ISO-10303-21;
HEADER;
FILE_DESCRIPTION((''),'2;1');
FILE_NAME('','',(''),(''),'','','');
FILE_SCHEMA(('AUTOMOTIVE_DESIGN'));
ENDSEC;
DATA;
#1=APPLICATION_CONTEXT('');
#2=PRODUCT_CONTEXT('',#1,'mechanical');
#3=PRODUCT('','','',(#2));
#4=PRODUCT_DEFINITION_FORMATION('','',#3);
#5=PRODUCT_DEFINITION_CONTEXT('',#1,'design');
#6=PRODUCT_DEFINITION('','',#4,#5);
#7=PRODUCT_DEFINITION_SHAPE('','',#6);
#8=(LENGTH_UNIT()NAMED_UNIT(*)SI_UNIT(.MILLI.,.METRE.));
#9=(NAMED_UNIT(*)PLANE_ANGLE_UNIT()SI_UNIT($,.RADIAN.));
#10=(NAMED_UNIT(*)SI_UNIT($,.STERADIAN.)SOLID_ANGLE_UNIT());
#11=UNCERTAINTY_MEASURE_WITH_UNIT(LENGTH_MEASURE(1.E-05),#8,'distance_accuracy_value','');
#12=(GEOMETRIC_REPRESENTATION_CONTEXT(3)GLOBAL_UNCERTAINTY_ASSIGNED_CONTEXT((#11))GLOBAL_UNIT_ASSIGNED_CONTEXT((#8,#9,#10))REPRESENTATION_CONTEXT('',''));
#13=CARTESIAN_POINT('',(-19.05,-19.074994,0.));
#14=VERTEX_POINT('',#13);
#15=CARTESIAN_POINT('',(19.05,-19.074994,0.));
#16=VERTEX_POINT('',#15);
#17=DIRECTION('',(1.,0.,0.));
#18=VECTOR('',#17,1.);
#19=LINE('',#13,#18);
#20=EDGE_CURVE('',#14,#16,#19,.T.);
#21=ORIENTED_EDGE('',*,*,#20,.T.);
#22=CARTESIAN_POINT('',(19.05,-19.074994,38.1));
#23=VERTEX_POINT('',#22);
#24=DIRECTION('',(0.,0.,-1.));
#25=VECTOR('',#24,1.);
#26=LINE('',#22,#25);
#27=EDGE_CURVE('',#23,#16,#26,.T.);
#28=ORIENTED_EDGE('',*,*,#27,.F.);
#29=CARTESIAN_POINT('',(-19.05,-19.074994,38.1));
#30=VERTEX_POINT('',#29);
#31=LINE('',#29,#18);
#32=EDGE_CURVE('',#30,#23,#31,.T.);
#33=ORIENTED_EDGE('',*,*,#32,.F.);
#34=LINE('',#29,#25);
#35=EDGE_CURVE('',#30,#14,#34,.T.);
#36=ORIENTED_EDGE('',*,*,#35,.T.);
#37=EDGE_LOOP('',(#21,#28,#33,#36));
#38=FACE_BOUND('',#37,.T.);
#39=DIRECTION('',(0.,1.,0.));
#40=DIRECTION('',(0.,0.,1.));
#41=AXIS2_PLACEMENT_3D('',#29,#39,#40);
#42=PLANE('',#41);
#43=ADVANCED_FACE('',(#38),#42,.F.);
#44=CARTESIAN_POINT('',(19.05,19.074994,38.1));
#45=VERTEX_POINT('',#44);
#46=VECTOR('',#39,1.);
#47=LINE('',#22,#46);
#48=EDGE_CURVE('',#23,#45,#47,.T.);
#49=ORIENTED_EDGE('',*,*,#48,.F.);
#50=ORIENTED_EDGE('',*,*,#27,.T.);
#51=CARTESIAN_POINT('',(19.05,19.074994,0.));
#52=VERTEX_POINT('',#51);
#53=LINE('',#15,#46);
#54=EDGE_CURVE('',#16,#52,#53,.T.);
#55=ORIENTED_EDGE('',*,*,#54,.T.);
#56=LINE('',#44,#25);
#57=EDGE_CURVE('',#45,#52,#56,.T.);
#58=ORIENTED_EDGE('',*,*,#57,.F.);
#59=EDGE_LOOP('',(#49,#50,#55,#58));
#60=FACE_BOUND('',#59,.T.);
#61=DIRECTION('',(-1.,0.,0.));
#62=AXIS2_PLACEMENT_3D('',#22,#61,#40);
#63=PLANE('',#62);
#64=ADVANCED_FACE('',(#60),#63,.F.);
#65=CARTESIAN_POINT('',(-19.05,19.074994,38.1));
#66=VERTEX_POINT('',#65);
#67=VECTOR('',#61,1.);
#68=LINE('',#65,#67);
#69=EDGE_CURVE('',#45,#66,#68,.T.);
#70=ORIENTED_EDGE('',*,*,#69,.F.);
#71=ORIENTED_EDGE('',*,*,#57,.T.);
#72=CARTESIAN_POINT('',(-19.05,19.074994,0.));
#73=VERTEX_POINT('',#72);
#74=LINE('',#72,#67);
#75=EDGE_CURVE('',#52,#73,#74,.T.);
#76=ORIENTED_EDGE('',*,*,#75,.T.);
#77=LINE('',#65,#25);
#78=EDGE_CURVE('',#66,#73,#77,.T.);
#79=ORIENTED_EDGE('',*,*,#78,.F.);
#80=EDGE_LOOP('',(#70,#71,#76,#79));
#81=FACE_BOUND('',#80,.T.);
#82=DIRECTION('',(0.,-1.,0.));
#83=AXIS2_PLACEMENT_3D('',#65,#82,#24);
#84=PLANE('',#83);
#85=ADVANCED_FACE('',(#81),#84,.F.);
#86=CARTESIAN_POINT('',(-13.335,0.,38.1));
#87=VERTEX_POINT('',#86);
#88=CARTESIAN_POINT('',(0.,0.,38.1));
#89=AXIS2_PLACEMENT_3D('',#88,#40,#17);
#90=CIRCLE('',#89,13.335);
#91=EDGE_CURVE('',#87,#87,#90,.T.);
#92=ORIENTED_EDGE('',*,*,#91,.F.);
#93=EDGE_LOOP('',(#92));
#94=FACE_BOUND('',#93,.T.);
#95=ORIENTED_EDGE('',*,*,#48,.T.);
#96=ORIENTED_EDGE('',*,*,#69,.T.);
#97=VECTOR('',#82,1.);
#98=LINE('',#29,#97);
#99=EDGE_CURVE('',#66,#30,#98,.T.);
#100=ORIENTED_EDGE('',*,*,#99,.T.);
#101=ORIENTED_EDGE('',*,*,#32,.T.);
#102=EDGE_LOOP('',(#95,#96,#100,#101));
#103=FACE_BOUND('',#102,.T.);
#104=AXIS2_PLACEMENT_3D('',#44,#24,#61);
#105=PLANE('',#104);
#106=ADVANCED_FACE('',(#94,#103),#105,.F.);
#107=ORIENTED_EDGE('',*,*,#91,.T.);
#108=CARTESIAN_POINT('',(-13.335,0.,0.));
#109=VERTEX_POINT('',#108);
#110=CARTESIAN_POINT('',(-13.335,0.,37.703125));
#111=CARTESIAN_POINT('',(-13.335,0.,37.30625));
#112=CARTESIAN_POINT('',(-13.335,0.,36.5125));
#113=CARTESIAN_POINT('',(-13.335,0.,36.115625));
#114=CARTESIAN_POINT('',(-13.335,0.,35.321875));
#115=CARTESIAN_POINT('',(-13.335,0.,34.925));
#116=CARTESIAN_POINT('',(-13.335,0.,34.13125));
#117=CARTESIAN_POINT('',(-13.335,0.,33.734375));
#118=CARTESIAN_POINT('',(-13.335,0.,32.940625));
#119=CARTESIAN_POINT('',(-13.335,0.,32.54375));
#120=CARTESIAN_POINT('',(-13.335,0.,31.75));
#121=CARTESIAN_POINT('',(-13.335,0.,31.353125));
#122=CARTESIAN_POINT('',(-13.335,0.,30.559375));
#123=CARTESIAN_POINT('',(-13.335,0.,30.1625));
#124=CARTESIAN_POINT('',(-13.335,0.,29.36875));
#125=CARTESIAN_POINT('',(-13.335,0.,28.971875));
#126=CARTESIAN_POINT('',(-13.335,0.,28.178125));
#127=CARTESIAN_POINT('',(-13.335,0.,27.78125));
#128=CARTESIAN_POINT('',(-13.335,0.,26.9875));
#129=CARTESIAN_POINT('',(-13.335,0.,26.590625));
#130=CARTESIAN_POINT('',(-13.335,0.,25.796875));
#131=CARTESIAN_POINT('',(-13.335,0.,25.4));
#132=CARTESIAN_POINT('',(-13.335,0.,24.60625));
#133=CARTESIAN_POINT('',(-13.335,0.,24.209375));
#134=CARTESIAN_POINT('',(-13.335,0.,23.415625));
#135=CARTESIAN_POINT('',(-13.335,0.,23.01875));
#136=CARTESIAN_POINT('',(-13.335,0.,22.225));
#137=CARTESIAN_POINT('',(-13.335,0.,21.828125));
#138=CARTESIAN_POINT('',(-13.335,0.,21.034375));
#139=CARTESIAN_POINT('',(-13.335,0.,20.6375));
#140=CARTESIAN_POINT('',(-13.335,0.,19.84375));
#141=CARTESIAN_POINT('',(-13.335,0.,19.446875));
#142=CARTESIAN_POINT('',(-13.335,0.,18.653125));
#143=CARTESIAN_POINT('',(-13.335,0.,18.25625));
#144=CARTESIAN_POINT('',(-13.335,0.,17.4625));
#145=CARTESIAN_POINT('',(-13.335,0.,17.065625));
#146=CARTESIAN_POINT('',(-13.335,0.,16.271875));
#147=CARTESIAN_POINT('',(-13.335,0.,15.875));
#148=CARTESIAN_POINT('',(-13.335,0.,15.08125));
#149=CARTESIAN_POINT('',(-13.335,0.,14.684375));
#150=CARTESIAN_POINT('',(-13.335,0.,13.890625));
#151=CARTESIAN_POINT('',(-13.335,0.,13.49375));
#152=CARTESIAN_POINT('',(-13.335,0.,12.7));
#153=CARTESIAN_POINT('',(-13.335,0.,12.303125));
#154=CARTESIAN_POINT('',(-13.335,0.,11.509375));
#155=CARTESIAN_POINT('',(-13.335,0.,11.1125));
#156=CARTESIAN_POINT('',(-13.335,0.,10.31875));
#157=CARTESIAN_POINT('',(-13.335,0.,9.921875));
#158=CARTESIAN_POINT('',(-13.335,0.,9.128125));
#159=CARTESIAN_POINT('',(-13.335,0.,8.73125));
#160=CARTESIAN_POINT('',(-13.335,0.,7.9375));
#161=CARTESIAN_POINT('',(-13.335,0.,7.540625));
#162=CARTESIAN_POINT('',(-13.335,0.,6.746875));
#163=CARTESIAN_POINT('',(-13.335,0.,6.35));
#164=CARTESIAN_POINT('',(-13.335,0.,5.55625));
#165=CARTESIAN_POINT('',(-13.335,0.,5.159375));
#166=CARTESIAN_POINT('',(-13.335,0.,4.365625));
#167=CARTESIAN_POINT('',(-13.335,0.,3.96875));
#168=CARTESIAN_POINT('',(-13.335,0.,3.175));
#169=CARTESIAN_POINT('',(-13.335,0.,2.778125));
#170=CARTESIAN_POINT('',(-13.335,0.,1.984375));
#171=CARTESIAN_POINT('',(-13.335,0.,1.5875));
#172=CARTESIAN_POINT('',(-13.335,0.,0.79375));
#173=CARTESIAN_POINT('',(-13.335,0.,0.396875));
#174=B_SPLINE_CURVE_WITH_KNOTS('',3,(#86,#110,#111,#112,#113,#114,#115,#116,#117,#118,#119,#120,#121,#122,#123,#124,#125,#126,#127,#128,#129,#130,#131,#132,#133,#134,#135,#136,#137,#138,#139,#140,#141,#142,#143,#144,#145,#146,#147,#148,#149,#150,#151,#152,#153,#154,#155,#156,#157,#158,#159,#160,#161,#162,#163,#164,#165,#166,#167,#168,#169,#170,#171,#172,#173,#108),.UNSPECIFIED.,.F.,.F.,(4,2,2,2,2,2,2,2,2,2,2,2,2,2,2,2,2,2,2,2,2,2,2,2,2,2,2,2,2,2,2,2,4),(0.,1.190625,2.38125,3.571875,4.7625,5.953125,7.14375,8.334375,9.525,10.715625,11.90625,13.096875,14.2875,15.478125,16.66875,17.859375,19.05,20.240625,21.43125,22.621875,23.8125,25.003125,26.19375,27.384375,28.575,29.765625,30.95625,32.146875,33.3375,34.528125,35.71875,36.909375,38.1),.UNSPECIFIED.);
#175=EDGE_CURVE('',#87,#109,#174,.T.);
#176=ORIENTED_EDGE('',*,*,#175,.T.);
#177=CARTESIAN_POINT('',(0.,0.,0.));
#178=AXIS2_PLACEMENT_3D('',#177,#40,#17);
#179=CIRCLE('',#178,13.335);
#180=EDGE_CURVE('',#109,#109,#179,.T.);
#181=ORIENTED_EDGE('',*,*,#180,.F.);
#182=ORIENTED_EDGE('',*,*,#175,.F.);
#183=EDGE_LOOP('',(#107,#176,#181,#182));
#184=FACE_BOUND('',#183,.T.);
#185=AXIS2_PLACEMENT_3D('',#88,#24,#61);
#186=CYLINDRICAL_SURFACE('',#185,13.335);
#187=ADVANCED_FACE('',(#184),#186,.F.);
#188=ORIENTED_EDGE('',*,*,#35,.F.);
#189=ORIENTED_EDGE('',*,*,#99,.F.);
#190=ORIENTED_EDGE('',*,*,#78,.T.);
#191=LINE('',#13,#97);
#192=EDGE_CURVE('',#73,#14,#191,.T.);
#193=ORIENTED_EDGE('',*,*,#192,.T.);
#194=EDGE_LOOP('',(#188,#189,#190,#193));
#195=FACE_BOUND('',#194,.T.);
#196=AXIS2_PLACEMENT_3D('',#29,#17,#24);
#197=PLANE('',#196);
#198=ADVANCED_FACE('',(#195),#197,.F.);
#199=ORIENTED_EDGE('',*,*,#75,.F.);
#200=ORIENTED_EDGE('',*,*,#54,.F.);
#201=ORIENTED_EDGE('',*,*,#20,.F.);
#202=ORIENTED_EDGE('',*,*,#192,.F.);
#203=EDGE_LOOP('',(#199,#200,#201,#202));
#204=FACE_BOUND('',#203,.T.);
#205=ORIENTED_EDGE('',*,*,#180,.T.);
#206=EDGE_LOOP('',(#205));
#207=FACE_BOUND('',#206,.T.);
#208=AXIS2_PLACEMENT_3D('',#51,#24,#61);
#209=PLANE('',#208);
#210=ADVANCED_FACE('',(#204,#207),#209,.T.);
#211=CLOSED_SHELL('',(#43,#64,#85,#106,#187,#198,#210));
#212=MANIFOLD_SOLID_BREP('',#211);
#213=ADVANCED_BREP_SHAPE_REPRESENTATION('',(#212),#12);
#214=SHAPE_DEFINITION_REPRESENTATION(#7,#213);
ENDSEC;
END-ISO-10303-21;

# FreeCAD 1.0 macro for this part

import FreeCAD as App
import Part
import Sketcher
from FreeCAD import Vector
Q = App.Units.Quantity


def add_polygon(sketch, points):
    """Adds a closed chain of lines whose ends are joined by coincident constraints."""
    first, n = sketch.GeometryCount, len(points)
    for a, b in zip(points, points[1:] + points[:1]):
        sketch.addGeometry(Part.LineSegment(App.Vector(*a, 0), App.Vector(*b, 0)), False)
    for i in range(n):
        sketch.addConstraint(Sketcher.Constraint("Coincident", first + i, 2, first + (i + 1) % n, 1))

doc = App.newDocument("Part")
body = doc.addObject("PartDesign::Body", "Body")

# Sketch on XY plane
sketch1 = body.newObject("Sketcher::SketchObject", "Sketch")
sketch1.AttachmentSupport = (doc.getObject("XY_Plane"), [""])
sketch1.MapMode = "FlatFace"
add_polygon(sketch1, [(-19, 19), (-19, -19), (19, -19), (19, 19)])  # lines 0-3
sketch1.addGeometry(Part.Circle(Vector(0, 0, 0), Vector(0, 0, 1), 13), False)  # 4
sketch1.addConstraint([
    Sketcher.Constraint("Vertical", 0),
    Sketcher.Constraint("Horizontal", 1),
    Sketcher.Constraint("Vertical", 2),
    Sketcher.Constraint("Horizontal", 3),
    Sketcher.Constraint("Coincident", 4, 3, -1, 1),
    Sketcher.Constraint("Symmetric", 0, 2, 2, 2, -1, 1),
    Sketcher.Constraint("Diameter", 4, Q("1.05 in")),
    Sketcher.Constraint("DistanceX", 1, 1, 1, 2, Q("1.5 in")),
    Sketcher.Constraint("DistanceY", 0, 2, 0, 1, 38.149988),
])
pad1 = body.newObject("PartDesign::Pad", "Pad")
pad1.Profile = sketch1
pad1.Length = Q("1.5 in")

doc.recompute()
